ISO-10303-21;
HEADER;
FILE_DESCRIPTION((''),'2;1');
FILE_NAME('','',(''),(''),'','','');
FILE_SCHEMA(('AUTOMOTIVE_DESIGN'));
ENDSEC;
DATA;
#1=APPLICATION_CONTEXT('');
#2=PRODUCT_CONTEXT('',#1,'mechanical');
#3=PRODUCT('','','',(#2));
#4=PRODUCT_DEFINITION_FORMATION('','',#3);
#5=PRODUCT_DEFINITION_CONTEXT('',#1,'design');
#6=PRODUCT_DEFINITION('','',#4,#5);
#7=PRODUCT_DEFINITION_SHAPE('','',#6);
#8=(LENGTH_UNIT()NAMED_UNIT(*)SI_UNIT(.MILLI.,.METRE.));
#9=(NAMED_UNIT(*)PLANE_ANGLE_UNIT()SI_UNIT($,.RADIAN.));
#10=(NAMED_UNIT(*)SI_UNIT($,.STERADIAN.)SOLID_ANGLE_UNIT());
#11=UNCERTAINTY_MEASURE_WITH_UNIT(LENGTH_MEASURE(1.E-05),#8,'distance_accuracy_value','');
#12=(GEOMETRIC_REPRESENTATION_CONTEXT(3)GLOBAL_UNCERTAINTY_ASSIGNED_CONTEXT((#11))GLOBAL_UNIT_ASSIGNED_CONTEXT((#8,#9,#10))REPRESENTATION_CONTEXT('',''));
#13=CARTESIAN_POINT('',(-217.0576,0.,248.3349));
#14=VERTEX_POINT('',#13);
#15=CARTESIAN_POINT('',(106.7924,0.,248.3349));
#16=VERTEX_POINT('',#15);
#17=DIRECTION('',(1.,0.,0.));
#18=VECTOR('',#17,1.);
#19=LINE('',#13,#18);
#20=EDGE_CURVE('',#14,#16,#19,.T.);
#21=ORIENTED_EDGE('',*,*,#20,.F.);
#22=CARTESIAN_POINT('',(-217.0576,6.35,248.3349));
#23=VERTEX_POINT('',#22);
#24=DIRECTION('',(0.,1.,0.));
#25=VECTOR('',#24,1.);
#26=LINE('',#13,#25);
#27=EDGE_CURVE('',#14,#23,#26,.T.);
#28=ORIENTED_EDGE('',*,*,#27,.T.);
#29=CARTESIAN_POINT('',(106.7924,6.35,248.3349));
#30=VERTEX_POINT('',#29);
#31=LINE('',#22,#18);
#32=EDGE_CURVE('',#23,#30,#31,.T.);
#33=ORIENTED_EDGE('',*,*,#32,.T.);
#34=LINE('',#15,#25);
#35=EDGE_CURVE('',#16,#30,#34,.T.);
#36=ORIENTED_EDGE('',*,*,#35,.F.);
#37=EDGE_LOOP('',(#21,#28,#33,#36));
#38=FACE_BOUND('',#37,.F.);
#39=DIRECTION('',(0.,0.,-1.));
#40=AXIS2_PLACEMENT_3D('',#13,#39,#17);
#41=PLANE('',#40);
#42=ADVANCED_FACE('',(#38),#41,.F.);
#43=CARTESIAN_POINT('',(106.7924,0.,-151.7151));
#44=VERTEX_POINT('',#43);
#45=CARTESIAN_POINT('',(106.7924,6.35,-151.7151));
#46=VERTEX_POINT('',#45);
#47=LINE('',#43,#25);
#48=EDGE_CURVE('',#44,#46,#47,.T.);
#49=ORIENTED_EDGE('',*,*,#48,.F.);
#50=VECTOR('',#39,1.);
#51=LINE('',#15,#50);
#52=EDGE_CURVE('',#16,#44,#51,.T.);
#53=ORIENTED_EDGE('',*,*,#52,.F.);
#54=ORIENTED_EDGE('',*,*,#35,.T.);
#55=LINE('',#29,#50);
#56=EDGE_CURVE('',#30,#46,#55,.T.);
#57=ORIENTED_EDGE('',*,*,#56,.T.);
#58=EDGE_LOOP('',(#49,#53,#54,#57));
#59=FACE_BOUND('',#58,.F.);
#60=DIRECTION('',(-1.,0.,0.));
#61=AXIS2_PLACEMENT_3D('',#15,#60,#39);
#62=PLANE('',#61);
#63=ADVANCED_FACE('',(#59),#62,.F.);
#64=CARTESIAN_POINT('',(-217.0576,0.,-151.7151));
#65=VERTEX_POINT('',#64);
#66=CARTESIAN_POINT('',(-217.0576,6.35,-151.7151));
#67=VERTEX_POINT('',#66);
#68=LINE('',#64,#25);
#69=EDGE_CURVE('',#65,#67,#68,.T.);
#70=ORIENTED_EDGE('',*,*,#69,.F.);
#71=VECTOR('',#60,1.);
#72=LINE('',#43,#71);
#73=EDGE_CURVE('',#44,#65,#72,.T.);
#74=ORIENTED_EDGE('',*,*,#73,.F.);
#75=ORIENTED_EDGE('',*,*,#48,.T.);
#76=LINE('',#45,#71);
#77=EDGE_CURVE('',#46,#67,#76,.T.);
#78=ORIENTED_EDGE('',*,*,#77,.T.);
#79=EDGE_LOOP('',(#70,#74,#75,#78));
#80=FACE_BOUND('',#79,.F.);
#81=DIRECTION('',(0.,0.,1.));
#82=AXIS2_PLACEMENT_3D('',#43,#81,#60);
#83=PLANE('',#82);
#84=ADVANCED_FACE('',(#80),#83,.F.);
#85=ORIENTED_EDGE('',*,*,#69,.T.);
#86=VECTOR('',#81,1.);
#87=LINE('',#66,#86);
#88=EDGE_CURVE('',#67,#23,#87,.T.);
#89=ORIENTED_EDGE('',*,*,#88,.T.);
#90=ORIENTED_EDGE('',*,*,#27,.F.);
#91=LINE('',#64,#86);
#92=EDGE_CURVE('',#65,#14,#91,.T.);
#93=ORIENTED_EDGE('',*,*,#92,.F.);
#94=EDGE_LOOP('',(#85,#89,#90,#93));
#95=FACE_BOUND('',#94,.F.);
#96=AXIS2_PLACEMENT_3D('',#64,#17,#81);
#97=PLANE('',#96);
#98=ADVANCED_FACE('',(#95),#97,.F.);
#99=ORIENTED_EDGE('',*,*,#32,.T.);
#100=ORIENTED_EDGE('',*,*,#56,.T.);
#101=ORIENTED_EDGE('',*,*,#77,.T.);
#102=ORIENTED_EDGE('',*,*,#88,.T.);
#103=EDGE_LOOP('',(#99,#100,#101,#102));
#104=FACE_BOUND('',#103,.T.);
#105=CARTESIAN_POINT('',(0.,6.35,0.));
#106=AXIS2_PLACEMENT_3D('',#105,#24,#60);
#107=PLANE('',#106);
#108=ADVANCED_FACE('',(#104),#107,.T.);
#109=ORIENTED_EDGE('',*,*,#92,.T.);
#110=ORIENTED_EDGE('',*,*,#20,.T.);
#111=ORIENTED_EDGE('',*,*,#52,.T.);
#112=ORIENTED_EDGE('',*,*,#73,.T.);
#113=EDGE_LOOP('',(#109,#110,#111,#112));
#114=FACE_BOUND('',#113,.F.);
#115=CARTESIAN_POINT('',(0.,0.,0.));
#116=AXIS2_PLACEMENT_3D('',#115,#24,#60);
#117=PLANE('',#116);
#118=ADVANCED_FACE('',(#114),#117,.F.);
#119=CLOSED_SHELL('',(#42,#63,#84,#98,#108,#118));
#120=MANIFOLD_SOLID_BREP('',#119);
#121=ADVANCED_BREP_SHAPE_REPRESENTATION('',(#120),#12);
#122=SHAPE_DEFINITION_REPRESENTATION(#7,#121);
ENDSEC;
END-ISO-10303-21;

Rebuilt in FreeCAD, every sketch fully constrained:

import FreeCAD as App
import Part
import Sketcher
from FreeCAD import Vector
Q = App.Units.Quantity

doc = App.newDocument("Part")
body = doc.addObject("PartDesign::Body", "Body")

sketch1 = doc.addObject("Sketcher::SketchObject", "Sketch")
body.addObject(sketch1)
sketch1.AttachmentSupport = (doc.XZ_Plane, [""])
sketch1.MapMode = "FlatFace"
sketch1.addGeometry([
    Part.LineSegment(Vector(107, 248, 0), Vector(107, -152, 0)),
    Part.LineSegment(Vector(107, -152, 0), Vector(-217, -152, 0)),
    Part.LineSegment(Vector(-217, -152, 0), Vector(-217, 248, 0)),
    Part.LineSegment(Vector(-217, 248, 0), Vector(107, 248, 0)),
], False)
sketch1.addConstraint([
    Sketcher.Constraint("Coincident", 0, 2, 1, 1),
    Sketcher.Constraint("Coincident", 1, 2, 2, 1),
    Sketcher.Constraint("Coincident", 2, 2, 3, 1),
    Sketcher.Constraint("Coincident", 3, 2, 0, 1),
    Sketcher.Constraint("Vertical", 0),
    Sketcher.Constraint("Horizontal", 1),
    Sketcher.Constraint("Vertical", 2),
    Sketcher.Constraint("Horizontal", 3),
    Sketcher.Constraint("DistanceX", 1, 2, 1, 1, Q("12.75 in")),
    Sketcher.Constraint("DistanceY", 0, 2, 0, 1, Q("15.75 in")),
    Sketcher.Constraint("DistanceX", -1, 1, 0, 2, 106.7924),
    Sketcher.Constraint("DistanceY", 0, 2, -1, 1, 151.715),
])
pad1 = doc.addObject("PartDesign::Pad", "Pad")
body.addObject(pad1)
pad1.Profile = sketch1
pad1.Length = Q("0.25 in")
pad1.Reversed = True

doc.recompute()
